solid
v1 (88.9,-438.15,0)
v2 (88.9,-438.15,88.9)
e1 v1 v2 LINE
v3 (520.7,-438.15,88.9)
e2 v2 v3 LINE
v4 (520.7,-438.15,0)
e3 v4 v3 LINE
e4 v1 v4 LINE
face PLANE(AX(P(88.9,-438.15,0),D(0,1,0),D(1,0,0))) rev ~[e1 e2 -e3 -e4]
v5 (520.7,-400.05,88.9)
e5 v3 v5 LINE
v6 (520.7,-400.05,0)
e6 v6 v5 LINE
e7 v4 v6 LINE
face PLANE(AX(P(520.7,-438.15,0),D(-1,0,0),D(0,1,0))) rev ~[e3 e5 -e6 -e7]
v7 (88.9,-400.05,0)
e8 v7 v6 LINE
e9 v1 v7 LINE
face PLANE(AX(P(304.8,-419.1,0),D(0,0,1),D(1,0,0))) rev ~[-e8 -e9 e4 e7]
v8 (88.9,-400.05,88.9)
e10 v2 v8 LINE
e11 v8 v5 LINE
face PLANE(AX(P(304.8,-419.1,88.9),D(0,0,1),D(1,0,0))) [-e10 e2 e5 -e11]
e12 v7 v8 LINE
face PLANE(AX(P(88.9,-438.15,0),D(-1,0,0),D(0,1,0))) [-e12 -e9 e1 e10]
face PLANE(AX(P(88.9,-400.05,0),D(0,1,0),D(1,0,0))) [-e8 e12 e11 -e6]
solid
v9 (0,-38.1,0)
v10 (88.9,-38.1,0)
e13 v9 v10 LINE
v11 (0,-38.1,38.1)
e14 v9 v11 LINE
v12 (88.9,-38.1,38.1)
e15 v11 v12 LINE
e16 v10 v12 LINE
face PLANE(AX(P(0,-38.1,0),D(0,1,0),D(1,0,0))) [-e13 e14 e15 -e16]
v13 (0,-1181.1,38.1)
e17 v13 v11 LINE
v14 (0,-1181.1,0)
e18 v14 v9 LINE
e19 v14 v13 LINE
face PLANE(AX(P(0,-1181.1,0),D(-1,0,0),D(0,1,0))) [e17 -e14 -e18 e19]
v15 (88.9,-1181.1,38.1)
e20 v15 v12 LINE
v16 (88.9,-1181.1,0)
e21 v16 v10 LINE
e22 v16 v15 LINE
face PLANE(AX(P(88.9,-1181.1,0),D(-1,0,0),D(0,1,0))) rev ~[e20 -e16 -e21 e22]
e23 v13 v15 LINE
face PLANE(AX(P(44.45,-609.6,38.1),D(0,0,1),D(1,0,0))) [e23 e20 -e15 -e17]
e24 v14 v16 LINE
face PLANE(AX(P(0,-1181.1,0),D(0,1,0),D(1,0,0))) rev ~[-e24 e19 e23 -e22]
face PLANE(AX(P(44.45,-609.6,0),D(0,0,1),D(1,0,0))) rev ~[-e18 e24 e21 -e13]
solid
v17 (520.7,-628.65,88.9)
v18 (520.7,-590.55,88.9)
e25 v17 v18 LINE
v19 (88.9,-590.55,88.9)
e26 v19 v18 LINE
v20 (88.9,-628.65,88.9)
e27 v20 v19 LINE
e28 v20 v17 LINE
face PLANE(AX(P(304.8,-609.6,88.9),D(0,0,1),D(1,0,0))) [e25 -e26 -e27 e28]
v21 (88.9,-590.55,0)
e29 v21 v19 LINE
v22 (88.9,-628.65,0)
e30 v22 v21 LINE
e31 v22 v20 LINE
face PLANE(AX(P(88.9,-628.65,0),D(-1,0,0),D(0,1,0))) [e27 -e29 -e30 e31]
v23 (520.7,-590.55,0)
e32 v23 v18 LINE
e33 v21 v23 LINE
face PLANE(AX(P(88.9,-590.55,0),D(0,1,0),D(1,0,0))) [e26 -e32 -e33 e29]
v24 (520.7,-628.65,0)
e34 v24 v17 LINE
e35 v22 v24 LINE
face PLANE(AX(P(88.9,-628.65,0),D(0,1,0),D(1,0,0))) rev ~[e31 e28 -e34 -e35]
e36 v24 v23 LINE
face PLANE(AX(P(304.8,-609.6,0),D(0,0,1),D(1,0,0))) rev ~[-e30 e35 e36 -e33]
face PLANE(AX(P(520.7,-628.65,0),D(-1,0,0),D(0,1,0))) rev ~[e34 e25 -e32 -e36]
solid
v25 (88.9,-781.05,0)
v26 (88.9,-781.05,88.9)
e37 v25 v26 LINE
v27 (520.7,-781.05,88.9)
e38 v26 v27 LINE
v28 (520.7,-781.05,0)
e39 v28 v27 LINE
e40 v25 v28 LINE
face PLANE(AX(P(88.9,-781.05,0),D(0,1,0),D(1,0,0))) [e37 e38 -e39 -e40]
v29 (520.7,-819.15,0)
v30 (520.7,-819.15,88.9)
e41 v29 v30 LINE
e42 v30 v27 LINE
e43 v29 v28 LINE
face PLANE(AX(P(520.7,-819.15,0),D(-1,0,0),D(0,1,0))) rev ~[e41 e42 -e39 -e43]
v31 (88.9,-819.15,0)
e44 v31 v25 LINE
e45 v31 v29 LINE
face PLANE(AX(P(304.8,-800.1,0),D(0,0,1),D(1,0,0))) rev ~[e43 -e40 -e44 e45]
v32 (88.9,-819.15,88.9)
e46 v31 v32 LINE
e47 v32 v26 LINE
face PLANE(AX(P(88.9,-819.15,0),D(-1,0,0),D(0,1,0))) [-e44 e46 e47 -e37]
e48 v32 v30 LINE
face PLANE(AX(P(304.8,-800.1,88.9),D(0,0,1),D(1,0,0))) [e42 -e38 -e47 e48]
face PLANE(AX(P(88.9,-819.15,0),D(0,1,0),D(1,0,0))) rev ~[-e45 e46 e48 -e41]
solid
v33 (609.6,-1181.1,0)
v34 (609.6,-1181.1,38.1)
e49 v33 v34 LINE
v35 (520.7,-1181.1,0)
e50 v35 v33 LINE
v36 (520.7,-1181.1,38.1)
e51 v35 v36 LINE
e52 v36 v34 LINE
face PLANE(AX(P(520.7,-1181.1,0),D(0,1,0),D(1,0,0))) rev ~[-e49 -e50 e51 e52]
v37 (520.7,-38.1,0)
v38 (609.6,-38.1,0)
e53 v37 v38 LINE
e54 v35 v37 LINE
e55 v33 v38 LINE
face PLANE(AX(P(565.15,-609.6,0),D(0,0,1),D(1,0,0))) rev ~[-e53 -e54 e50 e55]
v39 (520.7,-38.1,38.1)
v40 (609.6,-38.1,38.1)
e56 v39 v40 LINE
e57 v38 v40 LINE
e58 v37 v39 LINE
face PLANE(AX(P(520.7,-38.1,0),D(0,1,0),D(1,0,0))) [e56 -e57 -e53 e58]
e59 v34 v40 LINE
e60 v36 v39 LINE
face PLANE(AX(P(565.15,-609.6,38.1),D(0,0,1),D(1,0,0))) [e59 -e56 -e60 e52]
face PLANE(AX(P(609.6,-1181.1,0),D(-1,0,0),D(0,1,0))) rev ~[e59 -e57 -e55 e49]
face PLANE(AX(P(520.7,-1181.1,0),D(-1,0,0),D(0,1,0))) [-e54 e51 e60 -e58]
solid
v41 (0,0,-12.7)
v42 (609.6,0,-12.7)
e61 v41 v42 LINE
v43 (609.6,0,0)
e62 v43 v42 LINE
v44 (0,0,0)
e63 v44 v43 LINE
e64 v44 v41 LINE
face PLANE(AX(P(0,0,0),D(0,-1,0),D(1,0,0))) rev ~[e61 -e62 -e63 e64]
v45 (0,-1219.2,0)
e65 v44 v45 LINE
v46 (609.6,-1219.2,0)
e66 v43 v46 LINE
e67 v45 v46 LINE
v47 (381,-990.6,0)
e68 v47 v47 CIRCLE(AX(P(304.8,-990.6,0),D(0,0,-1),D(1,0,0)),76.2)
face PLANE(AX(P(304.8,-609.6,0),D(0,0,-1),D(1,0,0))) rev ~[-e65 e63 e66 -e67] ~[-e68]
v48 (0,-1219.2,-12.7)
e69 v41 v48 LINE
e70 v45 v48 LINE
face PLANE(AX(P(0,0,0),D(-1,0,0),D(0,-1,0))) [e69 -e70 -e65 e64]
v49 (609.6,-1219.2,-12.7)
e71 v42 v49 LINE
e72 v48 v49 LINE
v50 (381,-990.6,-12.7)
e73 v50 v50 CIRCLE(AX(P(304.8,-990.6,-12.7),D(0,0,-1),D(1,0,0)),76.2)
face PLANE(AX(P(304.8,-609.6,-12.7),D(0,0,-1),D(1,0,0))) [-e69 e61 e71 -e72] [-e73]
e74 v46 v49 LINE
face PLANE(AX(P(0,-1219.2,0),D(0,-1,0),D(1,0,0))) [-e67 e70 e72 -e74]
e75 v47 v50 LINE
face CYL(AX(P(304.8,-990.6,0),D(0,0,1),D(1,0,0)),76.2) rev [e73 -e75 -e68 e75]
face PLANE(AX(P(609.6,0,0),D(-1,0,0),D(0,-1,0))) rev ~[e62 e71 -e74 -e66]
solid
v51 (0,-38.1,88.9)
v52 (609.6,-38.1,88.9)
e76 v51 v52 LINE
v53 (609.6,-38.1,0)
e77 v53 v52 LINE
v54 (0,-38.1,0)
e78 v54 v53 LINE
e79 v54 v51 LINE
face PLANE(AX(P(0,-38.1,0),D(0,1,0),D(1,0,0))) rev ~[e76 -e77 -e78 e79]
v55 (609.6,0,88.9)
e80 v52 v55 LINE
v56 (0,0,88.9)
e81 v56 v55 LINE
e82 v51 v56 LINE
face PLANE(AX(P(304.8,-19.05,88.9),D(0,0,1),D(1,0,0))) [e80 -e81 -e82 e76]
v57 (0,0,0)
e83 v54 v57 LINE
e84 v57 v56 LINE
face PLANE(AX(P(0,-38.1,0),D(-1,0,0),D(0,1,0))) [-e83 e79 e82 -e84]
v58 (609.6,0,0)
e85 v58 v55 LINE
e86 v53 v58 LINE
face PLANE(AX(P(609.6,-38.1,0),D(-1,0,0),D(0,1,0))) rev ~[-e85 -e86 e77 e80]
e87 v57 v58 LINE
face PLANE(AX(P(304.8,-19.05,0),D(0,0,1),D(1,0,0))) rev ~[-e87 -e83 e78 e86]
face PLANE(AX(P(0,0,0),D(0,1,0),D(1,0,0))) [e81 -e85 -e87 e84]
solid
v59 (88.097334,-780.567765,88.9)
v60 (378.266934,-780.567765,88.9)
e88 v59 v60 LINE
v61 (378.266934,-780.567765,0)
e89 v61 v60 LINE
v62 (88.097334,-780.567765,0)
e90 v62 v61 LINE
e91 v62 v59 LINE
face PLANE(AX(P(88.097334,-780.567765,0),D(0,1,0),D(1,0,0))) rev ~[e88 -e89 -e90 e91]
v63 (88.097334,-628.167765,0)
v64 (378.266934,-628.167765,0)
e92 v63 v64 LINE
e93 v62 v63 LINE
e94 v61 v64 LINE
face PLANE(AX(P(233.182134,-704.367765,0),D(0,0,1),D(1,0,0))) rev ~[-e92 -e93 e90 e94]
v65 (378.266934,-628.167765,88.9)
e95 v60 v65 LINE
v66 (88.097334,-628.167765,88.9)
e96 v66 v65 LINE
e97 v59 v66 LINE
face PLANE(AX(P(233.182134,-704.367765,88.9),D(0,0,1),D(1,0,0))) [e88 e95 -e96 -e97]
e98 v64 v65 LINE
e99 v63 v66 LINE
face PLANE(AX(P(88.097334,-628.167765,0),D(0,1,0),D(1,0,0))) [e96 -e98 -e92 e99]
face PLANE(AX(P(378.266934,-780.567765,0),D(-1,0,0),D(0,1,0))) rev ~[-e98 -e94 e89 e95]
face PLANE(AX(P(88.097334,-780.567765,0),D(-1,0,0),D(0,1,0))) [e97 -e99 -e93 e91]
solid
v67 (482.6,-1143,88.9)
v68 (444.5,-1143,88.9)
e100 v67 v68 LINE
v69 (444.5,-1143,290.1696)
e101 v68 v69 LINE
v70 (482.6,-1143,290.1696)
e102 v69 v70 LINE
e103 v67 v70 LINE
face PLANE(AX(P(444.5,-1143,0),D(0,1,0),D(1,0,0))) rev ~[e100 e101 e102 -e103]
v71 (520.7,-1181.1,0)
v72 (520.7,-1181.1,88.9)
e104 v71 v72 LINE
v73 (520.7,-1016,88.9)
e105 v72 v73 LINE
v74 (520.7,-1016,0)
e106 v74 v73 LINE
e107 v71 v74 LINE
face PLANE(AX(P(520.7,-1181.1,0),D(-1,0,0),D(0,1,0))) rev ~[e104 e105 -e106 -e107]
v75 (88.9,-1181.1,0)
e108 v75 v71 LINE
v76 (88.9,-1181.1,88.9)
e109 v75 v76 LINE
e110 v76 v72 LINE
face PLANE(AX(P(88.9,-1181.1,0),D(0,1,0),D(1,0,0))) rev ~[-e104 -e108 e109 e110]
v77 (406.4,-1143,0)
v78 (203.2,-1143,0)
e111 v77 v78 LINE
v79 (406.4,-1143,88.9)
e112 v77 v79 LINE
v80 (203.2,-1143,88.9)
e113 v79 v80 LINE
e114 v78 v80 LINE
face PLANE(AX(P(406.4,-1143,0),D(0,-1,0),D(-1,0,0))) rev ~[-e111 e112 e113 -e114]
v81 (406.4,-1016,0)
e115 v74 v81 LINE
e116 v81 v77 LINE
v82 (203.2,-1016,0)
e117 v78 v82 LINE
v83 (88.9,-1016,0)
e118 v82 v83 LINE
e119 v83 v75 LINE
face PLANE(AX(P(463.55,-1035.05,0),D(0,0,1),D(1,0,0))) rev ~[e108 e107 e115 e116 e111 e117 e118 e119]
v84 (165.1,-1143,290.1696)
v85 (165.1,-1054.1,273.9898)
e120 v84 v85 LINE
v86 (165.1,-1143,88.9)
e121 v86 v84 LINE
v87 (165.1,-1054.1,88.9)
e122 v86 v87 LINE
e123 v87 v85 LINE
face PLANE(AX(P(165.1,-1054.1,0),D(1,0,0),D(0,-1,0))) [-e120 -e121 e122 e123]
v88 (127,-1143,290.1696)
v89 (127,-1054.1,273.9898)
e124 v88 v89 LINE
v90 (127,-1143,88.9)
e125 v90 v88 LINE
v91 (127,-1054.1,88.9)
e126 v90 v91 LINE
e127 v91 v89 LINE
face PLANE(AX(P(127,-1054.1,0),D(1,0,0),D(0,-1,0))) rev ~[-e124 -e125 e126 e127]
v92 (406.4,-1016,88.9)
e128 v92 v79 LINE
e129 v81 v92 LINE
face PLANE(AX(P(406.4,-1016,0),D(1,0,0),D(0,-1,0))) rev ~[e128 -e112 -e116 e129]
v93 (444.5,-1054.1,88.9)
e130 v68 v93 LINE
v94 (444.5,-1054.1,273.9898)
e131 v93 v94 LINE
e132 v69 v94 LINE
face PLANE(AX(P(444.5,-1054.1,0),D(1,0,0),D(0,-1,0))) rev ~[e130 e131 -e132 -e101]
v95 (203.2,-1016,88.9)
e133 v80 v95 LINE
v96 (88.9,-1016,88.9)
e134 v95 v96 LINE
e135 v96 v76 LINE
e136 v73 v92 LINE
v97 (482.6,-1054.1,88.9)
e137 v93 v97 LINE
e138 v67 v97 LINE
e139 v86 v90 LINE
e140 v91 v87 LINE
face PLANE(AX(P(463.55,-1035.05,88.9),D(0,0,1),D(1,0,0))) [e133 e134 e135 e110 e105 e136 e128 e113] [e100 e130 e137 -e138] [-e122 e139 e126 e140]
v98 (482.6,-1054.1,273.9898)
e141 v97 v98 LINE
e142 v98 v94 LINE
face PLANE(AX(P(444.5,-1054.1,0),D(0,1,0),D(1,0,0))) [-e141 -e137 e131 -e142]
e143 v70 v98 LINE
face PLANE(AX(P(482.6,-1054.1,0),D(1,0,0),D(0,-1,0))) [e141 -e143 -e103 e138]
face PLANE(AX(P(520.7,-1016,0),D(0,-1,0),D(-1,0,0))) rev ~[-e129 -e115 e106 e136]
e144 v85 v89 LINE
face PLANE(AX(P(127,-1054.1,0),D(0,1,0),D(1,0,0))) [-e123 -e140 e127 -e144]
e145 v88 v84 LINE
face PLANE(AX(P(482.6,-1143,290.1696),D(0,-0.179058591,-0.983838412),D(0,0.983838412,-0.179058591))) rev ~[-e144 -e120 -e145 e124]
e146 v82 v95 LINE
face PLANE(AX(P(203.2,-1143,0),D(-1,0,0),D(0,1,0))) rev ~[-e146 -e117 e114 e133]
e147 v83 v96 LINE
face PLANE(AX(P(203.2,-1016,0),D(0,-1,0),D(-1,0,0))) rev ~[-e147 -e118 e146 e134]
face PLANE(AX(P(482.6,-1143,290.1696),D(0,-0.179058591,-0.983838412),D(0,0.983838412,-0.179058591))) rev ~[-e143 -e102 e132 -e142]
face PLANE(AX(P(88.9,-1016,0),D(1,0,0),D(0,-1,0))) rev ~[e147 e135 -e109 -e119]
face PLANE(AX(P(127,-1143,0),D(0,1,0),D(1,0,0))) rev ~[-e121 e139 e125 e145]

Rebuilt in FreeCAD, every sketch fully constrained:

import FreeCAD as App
import Part
import Sketcher

V = App.Vector
Q = App.Units.Quantity


def add_polygon(sketch, points):
    """Adds a closed chain of lines whose ends are joined by coincident constraints."""
    first, n = sketch.GeometryCount, len(points)
    for a, b in zip(points, points[1:] + points[:1]):
        sketch.addGeometry(Part.LineSegment(App.Vector(*a, 0), App.Vector(*b, 0)), False)
    for i in range(n):
        sketch.addConstraint(Sketcher.Constraint("Coincident", first + i, 2, first + (i + 1) % n, 1))

doc = App.newDocument("Part")
body = doc.addObject("PartDesign::Body", "Body")

# Sketch on XY plane
sketch1 = body.newObject("Sketcher::SketchObject", "Sketch")
sketch1.AttachmentSupport = (doc.getObject("XY_Plane"), [""])
sketch1.MapMode = "FlatFace"
add_polygon(sketch1, [(0, 0), (0, -38), (610, -38), (610, 0)])  # lines 0-3
sketch1.addConstraint([
    Sketcher.Constraint("Vertical", 0),
    Sketcher.Constraint("Horizontal", 1),
    Sketcher.Constraint("Vertical", 2),
    Sketcher.Constraint("Horizontal", 3),
    Sketcher.Constraint("Coincident", 3, 2, -1, 1),
    Sketcher.Constraint("DistanceX", 1, 1, 1, 2, Q("24 in")),
    Sketcher.Constraint("DistanceY", 0, 2, 0, 1, Q("1.5 in")),
])
pad1 = body.newObject("PartDesign::Pad", "Pad")
pad1.Profile = sketch1
pad1.Length = Q("3.5 in")
body2 = doc.addObject("PartDesign::Body", "Body001")
body2.AllowCompound = True

# Sketch on XY plane
sketch2 = body2.newObject("Sketcher::SketchObject", "Sketch001")
sketch2.AttachmentSupport = (doc.getObject("XY_Plane001"), [""])
sketch2.MapMode = "FlatFace"
add_polygon(sketch2, [(0, -38), (0, -1181), (89, -1181), (89, -38)])  # lines 0-3
add_polygon(sketch2, [(521, -38), (521, -1181), (610, -1181), (610, -38)])  # lines 4-7
sketch2.addConstraint([
    Sketcher.Constraint("Vertical", 0),
    Sketcher.Constraint("Horizontal", 1),
    Sketcher.Constraint("Vertical", 2),
    Sketcher.Constraint("Horizontal", 3),
    Sketcher.Constraint("Vertical", 4),
    Sketcher.Constraint("Horizontal", 5),
    Sketcher.Constraint("Vertical", 6),
    Sketcher.Constraint("Horizontal", 7),
    Sketcher.Constraint("PointOnObject", 0, 2, -2),
    Sketcher.Constraint("Horizontal", 1, 2, 4, 2),
    Sketcher.Constraint("Horizontal", 3, 2, 6, 2),
    Sketcher.Constraint("Equal", 3, 5),
    Sketcher.Constraint("DistanceY", 0, 2, 0, 1, Q("45 in")),
    Sketcher.Constraint("DistanceX", 1, 1, 1, 2, Q("3.5 in")),
    Sketcher.Constraint("DistanceX", -1, 1, 5, 2, Q("24 in")),
    Sketcher.Constraint("DistanceY", 0, 2, -1, 1, Q("46.5 in")),
])
pad2 = body2.newObject("PartDesign::Pad", "Pad001")
pad2.Profile = sketch2
pad2.Length = Q("1.5 in")
body3 = doc.addObject("PartDesign::Body", "Body002")

# Sketch on XY plane
sketch3 = body3.newObject("Sketcher::SketchObject", "Sketch002")
sketch3.AttachmentSupport = (doc.getObject("XY_Plane002"), [""])
sketch3.MapMode = "FlatFace"
add_polygon(sketch3, [(521, -1016), (406, -1016), (406, -1143), (203, -1143), (203, -1016), (89, -1016), (89, -1181), (521, -1181)])  # lines 0-7
add_polygon(sketch3, [(483, -1143), (444, -1143), (444, -1054), (483, -1054)])  # lines 8-11
add_polygon(sketch3, [(165, -1054), (165, -1143), (127, -1143), (127, -1054)])  # lines 12-15
sketch3.addConstraint([
    Sketcher.Constraint("Horizontal", 0),
    Sketcher.Constraint("Vertical", 1),
    Sketcher.Constraint("Horizontal", 2),
    Sketcher.Constraint("Vertical", 3),
    Sketcher.Constraint("Horizontal", 4),
    Sketcher.Constraint("Vertical", 5),
    Sketcher.Constraint("Horizontal", 6),
    Sketcher.Constraint("Vertical", 7),
    Sketcher.Constraint("Horizontal", 8),
    Sketcher.Constraint("Vertical", 9),
    Sketcher.Constraint("Horizontal", 10),
    Sketcher.Constraint("Vertical", 11),
    Sketcher.Constraint("Vertical", 12),
    Sketcher.Constraint("Horizontal", 13),
    Sketcher.Constraint("Vertical", 14),
    Sketcher.Constraint("Horizontal", 15),
    Sketcher.Constraint("Horizontal", 0, 2, 3, 2),
    Sketcher.Constraint("Horizontal", 2, 2, 8, 2),
    Sketcher.Constraint("Horizontal", 11, 2, 12, 2),
    Sketcher.Constraint("Horizontal", 10, 2, 14, 2),
    Sketcher.Constraint("Equal", 0, 4),
    Sketcher.Constraint("Equal", 10, 13),
    Sketcher.Constraint("DistanceX", 2, 2, 2, 1, Q("8 in")),
    Sketcher.Constraint("DistanceX", 6, 1, 6, 2, Q("17 in")),
    Sketcher.Constraint("DistanceY", 1, 2, 1, 1, Q("5 in")),
    Sketcher.Constraint("DistanceX", 8, 2, 8, 1, Q("1.5 in")),
    Sketcher.Constraint("DistanceY", 5, 2, 5, 1, Q("6.5 in")),
    Sketcher.Constraint("DistanceY", 9, 1, 9, 2, Q("3.5 in")),
    Sketcher.Constraint("DistanceX", -1, 1, 0, 2, Q("16 in")),
    Sketcher.Constraint("DistanceY", 0, 2, -1, 1, Q("40 in")),
    Sketcher.Constraint("DistanceX", -1, 1, 10, 2, Q("19 in")),
    Sketcher.Constraint("DistanceX", -1, 1, 13, 2, Q("5 in")),
])
pad3 = body3.newObject("PartDesign::Pad", "Pad002")
pad3.Profile = sketch3
pad3.Length = Q("3.5 in")

# Sketch on XY plane
sketch4 = body3.newObject("Sketcher::SketchObject", "Sketch003")
sketch4.AttachmentSupport = (doc.getObject("XY_Plane002"), [""])
sketch4.MapMode = "FlatFace"
add_polygon(sketch4, [(444, -1143), (444, -1054), (483, -1054), (483, -1143)])  # lines 0-3
add_polygon(sketch4, [(127, -1143), (127, -1054), (165, -1054), (165, -1143)])  # lines 4-7
sketch4.addConstraint([
    Sketcher.Constraint("Vertical", 0),
    Sketcher.Constraint("Horizontal", 1),
    Sketcher.Constraint("Vertical", 2),
    Sketcher.Constraint("Horizontal", 3),
    Sketcher.Constraint("Vertical", 4),
    Sketcher.Constraint("Horizontal", 5),
    Sketcher.Constraint("Vertical", 6),
    Sketcher.Constraint("Horizontal", 7),
    Sketcher.Constraint("Horizontal", 1, 2, 4, 2),
    Sketcher.Constraint("Horizontal", 3, 2, 6, 2),
    Sketcher.Constraint("Equal", 3, 5),
    Sketcher.Constraint("DistanceX", 1, 1, 1, 2, Q("1.5 in")),
    Sketcher.Constraint("DistanceY", 0, 1, 0, 2, Q("3.5 in")),
    Sketcher.Constraint("DistanceX", -1, 1, 1, 2, Q("19 in")),
    Sketcher.Constraint("DistanceY", 2, 2, -1, 1, Q("45 in")),
    Sketcher.Constraint("DistanceX", -1, 1, 4, 2, Q("5 in")),
])
pad4 = body3.newObject("PartDesign::Pad", "Pad003")
pad4.Profile = sketch4
pad4.Length = Q("11.424 in")

# Sketch on YZ plane
sketch5 = body3.newObject("Sketcher::SketchObject", "Sketch004")
sketch5.AttachmentSupport = (doc.getObject("YZ_Plane002"), [""])
sketch5.MapMode = "FlatFace"
sketch5.AttachmentOffset = App.Placement(V(0, 0, 19 * 25.4), App.Rotation())
add_polygon(sketch5, [(-1054, 274), (-1054, 290), (-1143, 290)])  # lines 0-2
sketch5.addConstraint([
    Sketcher.Constraint("Vertical", 0),
    Sketcher.Constraint("Horizontal", 1),
    Sketcher.Constraint("DistanceX", 1, 2, 1, 1, Q("3.5 in")),
    Sketcher.Constraint("DistanceX", 1, 2, -1, 1, Q("45 in")),
    Sketcher.Constraint("DistanceY", 0, 1, 0, 2, Q("0.637 in")),
    Sketcher.Constraint("DistanceY", -1, 1, 0, 2, Q("11.424 in")),
])
pocket1 = body3.newObject("PartDesign::Pocket", "Pocket")
pocket1.Profile = sketch5
pocket1.Type = "ThroughAll"
body4 = doc.addObject("PartDesign::Body", "Body003")

# Sketch on XY plane
sketch6 = body4.newObject("Sketcher::SketchObject", "Sketch005")
sketch6.AttachmentSupport = (doc.getObject("XY_Plane003"), [""])
sketch6.MapMode = "FlatFace"
add_polygon(sketch6, [(0, -1219), (0, 0), (610, 0), (610, -1219)])  # lines 0-3
sketch6.addGeometry(Part.Circle(V(305, -991, 0), V(0, 0, 1), 76), False)  # 4
sketch6.addConstraint([
    Sketcher.Constraint("Vertical", 0),
    Sketcher.Constraint("Horizontal", 1),
    Sketcher.Constraint("Vertical", 2),
    Sketcher.Constraint("Horizontal", 3),
    Sketcher.Constraint("Coincident", 0, 2, -1, 1),
    Sketcher.Constraint("Diameter", 4, Q("6 in")),
    Sketcher.Constraint("DistanceX", 1, 1, 1, 2, Q("24 in")),
    Sketcher.Constraint("DistanceY", 0, 1, 0, 2, Q("48 in")),
    Sketcher.Constraint("DistanceX", -1, 1, 4, 3, Q("12 in")),
    Sketcher.Constraint("DistanceY", 4, 3, -1, 1, Q("39 in")),
])
pad5 = body4.newObject("PartDesign::Pad", "Pad004")
pad5.Profile = sketch6
pad5.Length = Q("0.5 in")
pad5.Reversed = True
body5 = doc.addObject("PartDesign::Body", "Body004")
body5.AllowCompound = True

# Sketch on XY plane
sketch7 = body5.newObject("Sketcher::SketchObject", "Sketch006")
sketch7.AttachmentSupport = (doc.getObject("XY_Plane004"), [""])
sketch7.MapMode = "FlatFace"
add_polygon(sketch7, [(89, -591), (89, -629), (521, -629), (521, -591)])  # lines 0-3
add_polygon(sketch7, [(89, -400), (89, -438), (521, -438), (521, -400)])  # lines 4-7
add_polygon(sketch7, [(89, -781), (89, -819), (521, -819), (521, -781)])  # lines 8-11
sketch7.addConstraint([
    Sketcher.Constraint("Vertical", 0),
    Sketcher.Constraint("Horizontal", 1),
    Sketcher.Constraint("Vertical", 2),
    Sketcher.Constraint("Horizontal", 3),
    Sketcher.Constraint("Vertical", 4),
    Sketcher.Constraint("Horizontal", 5),
    Sketcher.Constraint("Vertical", 6),
    Sketcher.Constraint("Horizontal", 7),
    Sketcher.Constraint("Vertical", 8),
    Sketcher.Constraint("Horizontal", 9),
    Sketcher.Constraint("Vertical", 10),
    Sketcher.Constraint("Horizontal", 11),
    Sketcher.Constraint("Vertical", 3, 2, 4, 2),
    Sketcher.Constraint("Vertical", 2, 2, 5, 2),
    Sketcher.Constraint("Vertical", 7, 2, 8, 2),
    Sketcher.Constraint("Vertical", 6, 2, 9, 2),
    Sketcher.Constraint("Equal", 2, 4),
    Sketcher.Constraint("Equal", 6, 8),
    Sketcher.Constraint("DistanceX", 1, 1, 1, 2, Q("17 in")),
    Sketcher.Constraint("DistanceY", 0, 2, 0, 1, Q("1.5 in")),
    Sketcher.Constraint("DistanceY", 3, 2, 4, 2, Q("6 in")),
    Sketcher.Constraint("DistanceY", 8, 2, 3, 2, Q("9 in")),
    Sketcher.Constraint("DistanceX", -1, 1, 0, 2, Q("3.5 in")),
    Sketcher.Constraint("DistanceY", 0, 2, -1, 1, Q("24.75 in")),
])
pad6 = body5.newObject("PartDesign::Pad", "Pad005")
pad6.Profile = sketch7
pad6.Length = Q("3.5 in")
body6 = doc.addObject("PartDesign::Body", "Body005")

# Sketch on XY plane
sketch8 = body6.newObject("Sketcher::SketchObject", "Sketch007")
sketch8.AttachmentSupport = (doc.getObject("XY_Plane005"), [""])
sketch8.MapMode = "FlatFace"
add_polygon(sketch8, [(88, -628), (88, -781), (378, -781), (378, -628)])  # lines 0-3
sketch8.addConstraint([
    Sketcher.Constraint("Vertical", 0),
    Sketcher.Constraint("Horizontal", 1),
    Sketcher.Constraint("Vertical", 2),
    Sketcher.Constraint("Horizontal", 3),
    Sketcher.Constraint("DistanceY", 0, 2, 0, 1, Q("6 in")),
    Sketcher.Constraint("DistanceX", 1, 1, 1, 2, Q("11.424 in")),
    Sketcher.Constraint("DistanceX", -1, 1, 0, 2, 88.097334),
    Sketcher.Constraint("DistanceY", 0, 2, -1, 1, 780.567765),
])
pad7 = body6.newObject("PartDesign::Pad", "Pad006")
pad7.Profile = sketch8
pad7.Length = Q("3.5 in")

doc.recompute()
